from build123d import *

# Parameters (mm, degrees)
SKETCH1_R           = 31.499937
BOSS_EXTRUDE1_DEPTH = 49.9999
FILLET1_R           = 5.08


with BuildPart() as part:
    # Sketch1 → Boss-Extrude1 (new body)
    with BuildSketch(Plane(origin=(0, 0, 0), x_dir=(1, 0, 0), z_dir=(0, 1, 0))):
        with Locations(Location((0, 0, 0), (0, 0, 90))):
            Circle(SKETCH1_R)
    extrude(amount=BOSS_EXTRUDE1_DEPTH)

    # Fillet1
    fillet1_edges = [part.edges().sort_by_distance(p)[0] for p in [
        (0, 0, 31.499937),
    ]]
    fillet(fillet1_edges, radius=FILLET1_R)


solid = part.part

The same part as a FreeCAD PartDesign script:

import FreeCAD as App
import Part
import Sketcher
Q = App.Units.Quantity


def edges_at(feature, points):
    """Names of the edges that pass closest to the given points."""
    edges = feature.Shape.Edges
    near = lambda p: min(range(len(edges)), key=lambda i: edges[i].distToShape(Part.Vertex(*p))[0])
    return sorted({f"Edge{near(p) + 1}" for p in points})

doc = App.newDocument("Part")
body = doc.addObject("PartDesign::Body", "Body")

sketch1 = body.newObject("Sketcher::SketchObject", "Sketch")
sketch1.AttachmentSupport = (doc.getObject("XZ_Plane"), [""])
sketch1.MapMode = "FlatFace"
sketch1.addGeometry(Part.Circle(App.Vector(0, 0, 0), App.Vector(0, 0, 1), 31), False)
sketch1.addConstraint([
    Sketcher.Constraint("Coincident", 0, 3, -1, 1),
    Sketcher.Constraint("Diameter", 0, 62.999874),
])
pad1 = body.newObject("PartDesign::Pad", "Pad")
pad1.Profile = sketch1
pad1.Length = Q("1.9685 in")
pad1.Reversed = True
doc.recompute()

fillet = body.newObject("PartDesign::Fillet", "Fillet")
fillet.Base = (pad1, edges_at(pad1, [(0, 0, 31.5)]))
fillet.Radius = Q("0.2 in")

doc.recompute()
